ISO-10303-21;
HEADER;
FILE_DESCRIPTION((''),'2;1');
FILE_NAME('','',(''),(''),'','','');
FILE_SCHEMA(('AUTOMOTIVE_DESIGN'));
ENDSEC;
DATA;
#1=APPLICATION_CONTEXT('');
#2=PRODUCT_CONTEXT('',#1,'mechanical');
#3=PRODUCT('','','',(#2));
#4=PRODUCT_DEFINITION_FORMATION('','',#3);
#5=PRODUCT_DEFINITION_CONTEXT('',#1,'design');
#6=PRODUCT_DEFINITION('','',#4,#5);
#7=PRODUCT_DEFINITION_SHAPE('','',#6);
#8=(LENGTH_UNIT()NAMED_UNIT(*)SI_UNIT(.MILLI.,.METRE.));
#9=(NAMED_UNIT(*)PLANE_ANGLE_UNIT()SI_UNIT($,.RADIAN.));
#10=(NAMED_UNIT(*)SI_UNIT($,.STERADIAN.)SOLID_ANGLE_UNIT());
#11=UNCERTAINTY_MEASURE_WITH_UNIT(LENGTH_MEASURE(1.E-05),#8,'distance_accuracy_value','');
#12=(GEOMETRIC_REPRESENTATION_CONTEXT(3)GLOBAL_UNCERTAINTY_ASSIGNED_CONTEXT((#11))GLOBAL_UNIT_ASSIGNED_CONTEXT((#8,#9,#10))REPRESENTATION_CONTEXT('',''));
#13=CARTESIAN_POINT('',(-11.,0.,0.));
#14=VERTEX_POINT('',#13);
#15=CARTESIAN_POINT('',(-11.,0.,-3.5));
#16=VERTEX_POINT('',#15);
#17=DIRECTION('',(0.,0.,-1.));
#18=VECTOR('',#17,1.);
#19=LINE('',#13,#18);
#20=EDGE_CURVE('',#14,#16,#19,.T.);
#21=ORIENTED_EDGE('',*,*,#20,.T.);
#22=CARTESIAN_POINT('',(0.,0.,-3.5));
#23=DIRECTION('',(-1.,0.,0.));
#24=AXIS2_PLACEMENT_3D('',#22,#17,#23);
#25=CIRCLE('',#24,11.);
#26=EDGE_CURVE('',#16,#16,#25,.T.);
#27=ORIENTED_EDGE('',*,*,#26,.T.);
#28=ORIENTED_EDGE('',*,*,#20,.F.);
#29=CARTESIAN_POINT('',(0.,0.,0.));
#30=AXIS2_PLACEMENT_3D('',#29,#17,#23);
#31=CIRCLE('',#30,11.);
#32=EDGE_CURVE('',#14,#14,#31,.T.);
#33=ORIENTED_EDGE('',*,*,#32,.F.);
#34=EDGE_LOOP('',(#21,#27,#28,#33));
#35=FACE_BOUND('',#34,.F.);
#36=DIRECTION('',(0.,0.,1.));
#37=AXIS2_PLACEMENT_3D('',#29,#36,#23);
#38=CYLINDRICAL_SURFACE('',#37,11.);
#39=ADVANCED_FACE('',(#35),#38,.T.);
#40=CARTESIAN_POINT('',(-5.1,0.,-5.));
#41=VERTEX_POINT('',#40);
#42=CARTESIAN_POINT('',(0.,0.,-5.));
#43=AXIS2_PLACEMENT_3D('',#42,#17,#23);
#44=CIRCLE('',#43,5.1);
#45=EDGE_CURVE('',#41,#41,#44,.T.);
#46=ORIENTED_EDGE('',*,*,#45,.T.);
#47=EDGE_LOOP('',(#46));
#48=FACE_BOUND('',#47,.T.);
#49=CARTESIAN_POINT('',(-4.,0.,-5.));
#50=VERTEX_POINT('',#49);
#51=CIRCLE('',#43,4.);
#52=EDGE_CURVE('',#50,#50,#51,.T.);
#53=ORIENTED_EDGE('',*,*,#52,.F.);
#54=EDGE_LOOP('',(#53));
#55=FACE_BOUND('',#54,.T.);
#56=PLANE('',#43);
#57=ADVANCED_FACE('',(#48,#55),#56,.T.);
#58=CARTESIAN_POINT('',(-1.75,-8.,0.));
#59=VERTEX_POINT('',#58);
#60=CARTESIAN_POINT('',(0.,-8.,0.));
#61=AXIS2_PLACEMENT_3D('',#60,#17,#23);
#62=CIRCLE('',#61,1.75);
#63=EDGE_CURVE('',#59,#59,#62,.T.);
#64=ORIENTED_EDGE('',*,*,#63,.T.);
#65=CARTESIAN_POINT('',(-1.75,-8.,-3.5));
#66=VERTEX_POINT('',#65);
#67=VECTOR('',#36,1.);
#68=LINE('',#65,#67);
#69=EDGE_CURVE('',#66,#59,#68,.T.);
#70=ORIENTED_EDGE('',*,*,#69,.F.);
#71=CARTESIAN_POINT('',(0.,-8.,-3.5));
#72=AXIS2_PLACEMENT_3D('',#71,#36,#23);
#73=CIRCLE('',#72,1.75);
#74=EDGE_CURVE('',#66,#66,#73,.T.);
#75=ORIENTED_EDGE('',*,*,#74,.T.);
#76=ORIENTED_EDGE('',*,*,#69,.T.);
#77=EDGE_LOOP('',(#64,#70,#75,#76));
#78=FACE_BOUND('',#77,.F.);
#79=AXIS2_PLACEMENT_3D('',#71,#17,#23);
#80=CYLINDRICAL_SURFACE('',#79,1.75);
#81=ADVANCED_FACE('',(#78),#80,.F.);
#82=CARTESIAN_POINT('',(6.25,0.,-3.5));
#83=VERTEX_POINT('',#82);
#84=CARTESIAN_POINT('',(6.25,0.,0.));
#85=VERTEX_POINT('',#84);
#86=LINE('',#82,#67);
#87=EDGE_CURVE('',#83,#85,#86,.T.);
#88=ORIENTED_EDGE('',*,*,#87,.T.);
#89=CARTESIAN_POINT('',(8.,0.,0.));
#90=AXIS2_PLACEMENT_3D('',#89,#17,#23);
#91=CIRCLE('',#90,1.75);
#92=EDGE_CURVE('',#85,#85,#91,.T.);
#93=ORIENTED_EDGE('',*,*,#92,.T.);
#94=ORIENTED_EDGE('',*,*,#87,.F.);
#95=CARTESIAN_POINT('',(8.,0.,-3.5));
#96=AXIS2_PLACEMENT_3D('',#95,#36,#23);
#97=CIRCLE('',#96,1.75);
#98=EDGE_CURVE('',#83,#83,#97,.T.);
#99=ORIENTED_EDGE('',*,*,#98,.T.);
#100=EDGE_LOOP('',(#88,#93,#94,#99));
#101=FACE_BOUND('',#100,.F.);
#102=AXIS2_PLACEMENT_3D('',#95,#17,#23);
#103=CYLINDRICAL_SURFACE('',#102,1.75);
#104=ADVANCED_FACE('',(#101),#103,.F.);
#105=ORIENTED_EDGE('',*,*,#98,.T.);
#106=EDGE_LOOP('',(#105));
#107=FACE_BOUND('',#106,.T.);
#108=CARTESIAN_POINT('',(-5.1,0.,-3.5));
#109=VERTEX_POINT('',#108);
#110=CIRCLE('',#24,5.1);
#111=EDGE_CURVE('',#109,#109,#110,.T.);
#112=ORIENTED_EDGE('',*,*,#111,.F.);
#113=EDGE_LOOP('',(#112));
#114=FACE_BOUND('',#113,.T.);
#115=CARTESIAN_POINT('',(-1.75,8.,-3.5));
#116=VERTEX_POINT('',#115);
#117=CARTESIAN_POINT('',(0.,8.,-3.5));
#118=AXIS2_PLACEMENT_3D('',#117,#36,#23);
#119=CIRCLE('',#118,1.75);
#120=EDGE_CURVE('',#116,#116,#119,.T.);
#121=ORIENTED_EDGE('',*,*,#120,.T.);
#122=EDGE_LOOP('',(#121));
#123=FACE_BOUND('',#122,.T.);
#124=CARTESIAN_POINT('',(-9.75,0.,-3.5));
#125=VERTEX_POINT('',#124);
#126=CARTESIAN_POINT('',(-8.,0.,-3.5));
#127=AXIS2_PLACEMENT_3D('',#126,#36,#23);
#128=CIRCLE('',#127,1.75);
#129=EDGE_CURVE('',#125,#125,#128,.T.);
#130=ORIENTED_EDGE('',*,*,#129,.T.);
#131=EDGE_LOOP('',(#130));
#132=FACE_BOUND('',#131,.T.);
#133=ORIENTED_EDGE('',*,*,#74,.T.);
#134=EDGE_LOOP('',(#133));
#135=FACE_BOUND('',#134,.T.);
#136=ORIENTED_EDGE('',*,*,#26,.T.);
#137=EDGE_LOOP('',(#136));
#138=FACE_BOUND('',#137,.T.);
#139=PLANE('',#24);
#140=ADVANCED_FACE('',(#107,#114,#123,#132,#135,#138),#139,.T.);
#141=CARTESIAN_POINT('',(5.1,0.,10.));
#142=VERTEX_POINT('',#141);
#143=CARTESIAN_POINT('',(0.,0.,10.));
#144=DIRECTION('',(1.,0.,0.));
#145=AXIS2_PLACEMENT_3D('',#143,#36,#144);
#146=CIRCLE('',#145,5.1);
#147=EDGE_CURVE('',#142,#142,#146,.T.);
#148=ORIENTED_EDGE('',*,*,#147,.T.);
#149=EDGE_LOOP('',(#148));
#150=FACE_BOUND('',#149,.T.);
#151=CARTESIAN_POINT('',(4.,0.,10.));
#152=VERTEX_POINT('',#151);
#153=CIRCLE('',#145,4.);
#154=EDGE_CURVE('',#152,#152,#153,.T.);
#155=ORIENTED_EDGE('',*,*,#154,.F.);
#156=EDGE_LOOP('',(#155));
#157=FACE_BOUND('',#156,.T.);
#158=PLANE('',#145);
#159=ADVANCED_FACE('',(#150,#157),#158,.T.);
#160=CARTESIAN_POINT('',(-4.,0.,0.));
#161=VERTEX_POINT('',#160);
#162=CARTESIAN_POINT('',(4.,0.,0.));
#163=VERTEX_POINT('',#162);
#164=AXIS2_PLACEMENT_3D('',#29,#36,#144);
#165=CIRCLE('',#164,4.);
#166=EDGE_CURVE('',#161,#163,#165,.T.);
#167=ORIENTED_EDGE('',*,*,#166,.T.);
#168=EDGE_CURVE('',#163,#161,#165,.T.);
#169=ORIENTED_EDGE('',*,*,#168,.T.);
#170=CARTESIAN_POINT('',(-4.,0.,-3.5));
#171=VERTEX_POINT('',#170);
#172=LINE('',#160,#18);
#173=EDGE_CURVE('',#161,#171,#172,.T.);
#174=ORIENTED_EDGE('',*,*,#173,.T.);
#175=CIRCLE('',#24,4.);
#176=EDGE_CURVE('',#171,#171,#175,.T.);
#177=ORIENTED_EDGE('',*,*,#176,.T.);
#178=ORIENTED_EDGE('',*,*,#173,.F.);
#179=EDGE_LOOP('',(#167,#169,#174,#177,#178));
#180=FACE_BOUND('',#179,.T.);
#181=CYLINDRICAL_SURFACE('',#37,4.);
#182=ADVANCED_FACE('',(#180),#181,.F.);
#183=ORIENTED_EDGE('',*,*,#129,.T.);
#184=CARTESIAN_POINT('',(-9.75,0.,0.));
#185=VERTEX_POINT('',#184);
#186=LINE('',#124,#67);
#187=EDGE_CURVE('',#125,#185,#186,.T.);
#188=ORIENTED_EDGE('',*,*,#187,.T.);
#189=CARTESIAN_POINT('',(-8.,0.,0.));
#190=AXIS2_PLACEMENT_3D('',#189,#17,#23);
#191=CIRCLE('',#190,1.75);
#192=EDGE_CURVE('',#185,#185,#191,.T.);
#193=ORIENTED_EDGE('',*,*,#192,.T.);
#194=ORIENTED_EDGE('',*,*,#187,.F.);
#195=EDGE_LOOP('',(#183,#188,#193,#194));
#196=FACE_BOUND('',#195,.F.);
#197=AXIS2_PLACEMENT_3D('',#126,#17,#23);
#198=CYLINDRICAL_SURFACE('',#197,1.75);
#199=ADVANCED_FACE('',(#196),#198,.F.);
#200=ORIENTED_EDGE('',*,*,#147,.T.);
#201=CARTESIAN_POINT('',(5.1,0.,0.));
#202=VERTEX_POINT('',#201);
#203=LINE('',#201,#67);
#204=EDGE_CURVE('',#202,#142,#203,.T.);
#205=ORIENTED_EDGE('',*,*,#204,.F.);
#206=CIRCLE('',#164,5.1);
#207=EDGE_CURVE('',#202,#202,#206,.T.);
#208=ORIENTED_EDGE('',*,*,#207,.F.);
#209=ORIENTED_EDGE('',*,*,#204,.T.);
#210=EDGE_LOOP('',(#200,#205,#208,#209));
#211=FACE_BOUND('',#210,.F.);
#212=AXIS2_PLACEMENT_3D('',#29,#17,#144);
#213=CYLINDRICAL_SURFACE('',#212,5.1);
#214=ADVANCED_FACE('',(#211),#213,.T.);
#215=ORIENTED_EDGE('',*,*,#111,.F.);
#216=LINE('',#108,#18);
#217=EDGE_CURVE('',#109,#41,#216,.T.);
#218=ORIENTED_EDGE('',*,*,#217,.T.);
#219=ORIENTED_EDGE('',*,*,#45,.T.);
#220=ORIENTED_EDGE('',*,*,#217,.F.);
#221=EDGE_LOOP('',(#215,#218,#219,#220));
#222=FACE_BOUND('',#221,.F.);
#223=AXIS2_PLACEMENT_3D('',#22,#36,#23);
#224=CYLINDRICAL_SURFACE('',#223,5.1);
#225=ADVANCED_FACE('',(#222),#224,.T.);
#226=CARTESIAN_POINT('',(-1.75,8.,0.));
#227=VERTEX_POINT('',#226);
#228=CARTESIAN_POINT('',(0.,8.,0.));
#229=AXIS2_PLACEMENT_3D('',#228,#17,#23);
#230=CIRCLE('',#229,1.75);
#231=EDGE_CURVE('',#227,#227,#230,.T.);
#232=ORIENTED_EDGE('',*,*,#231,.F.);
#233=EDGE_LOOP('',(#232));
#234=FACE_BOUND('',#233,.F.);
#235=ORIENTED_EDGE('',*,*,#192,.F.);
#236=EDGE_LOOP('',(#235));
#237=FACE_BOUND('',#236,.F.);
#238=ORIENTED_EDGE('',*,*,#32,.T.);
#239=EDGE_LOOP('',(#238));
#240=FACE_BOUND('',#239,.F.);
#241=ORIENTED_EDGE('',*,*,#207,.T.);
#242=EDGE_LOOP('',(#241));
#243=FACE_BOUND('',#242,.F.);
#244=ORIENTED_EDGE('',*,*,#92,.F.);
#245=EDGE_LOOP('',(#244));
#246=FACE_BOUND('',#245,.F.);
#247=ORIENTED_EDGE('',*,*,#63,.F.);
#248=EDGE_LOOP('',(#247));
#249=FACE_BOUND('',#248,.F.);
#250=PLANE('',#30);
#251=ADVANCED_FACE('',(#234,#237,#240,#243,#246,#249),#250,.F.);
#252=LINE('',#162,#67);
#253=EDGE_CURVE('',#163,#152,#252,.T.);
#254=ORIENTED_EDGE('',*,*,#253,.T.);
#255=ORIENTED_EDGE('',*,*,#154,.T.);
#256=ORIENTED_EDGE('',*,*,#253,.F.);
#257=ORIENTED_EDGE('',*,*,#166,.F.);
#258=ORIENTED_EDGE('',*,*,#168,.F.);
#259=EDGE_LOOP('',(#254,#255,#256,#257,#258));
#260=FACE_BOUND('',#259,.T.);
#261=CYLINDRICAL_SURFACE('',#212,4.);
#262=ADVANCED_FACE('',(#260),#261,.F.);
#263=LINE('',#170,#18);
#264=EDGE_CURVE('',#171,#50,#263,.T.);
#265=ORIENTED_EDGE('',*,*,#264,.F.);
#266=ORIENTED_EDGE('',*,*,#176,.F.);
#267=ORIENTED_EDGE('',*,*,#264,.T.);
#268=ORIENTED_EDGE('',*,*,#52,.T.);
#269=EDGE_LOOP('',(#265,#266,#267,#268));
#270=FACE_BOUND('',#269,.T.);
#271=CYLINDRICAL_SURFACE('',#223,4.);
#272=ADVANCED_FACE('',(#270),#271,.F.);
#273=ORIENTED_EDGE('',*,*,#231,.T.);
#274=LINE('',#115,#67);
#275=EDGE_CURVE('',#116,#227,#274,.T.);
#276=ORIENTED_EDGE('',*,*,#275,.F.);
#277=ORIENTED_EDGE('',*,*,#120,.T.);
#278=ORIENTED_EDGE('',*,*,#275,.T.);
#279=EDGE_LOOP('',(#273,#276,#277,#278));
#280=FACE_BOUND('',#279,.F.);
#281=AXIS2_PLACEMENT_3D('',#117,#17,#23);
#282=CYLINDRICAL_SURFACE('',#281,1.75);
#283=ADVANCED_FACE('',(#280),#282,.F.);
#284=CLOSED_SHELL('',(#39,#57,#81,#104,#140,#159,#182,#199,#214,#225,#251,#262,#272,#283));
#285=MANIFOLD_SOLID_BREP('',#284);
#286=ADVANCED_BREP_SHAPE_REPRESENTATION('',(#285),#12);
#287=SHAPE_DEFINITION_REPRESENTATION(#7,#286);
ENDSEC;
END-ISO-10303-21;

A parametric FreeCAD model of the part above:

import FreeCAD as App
import Part
import Sketcher

V = App.Vector
Q = App.Units.Quantity

doc = App.newDocument("Part")
body = doc.addObject("PartDesign::Body", "Body")

sketch1 = body.newObject("Sketcher::SketchObject", "Sketch")
sketch1.AttachmentSupport = (doc.getObject("XY_Plane"), [""])
sketch1.MapMode = "FlatFace"
sketch1.addGeometry([
    Part.Circle(V(0, 0, 0), V(0, 0, 1), 5.1),
    Part.Circle(V(0, 0, 0), V(0, 0, 1), 4),
], False)
sketch1.addConstraint([
    Sketcher.Constraint("Coincident", 0, 3, -1, 1),
    Sketcher.Constraint("Coincident", 1, 3, -1, 1),
    Sketcher.Constraint("Diameter", 1, Q("8 mm")),
    Sketcher.Constraint("Diameter", 0, Q("10.2 mm")),
])
pad1 = body.newObject("PartDesign::Pad", "Pad")
pad1.Profile = sketch1
pad1.Length = 10

sketch2 = body.newObject("Sketcher::SketchObject", "Sketch001")
sketch2.AttachmentSupport = (doc.getObject("XY_Plane"), [""])
sketch2.MapMode = "FlatFace"
sketch2.addGeometry([
    Part.Circle(V(0, 0, 0), V(0, 0, 1), 11),
    Part.Circle(V(0, 0, 0), V(0, 0, 1), 4),
], False)
sketch2.addConstraint([
    Sketcher.Constraint("Coincident", 0, 3, -1, 1),
    Sketcher.Constraint("Coincident", 1, 3, -1, 1),
    Sketcher.Constraint("Diameter", 0, Q("22 mm")),
    Sketcher.Constraint("Diameter", 1, Q("8 mm")),
])
pad2 = body.newObject("PartDesign::Pad", "Pad001")
pad2.Profile = sketch2
pad2.Length = 3.5
pad2.Reversed = True

sketch3 = body.newObject("Sketcher::SketchObject", "Sketch002")
sketch3.AttachmentSupport = (doc.getObject("XY_Plane"), [""])
sketch3.MapMode = "FlatFace"
sketch3.AttachmentOffset = App.Placement(V(0, 0, -3.5), App.Rotation())
sketch3.addGeometry([
    Part.Circle(V(0, 0, 0), V(0, 0, 1), 5.1),
    Part.Circle(V(0, 0, 0), V(0, 0, 1), 4),
], False)
sketch3.addConstraint([
    Sketcher.Constraint("Coincident", 0, 3, -1, 1),
    Sketcher.Constraint("Coincident", 1, 3, -1, 1),
    Sketcher.Constraint("Diameter", 1, Q("8 mm")),
    Sketcher.Constraint("Diameter", 0, Q("10.2 mm")),
])
pad3 = body.newObject("PartDesign::Pad", "Pad002")
pad3.Profile = sketch3
pad3.Length = 1.5
pad3.Reversed = True

sketch4 = body.newObject("Sketcher::SketchObject", "Sketch003")
sketch4.AttachmentSupport = (doc.getObject("XY_Plane"), [""])
sketch4.MapMode = "FlatFace"
sketch4.AttachmentOffset = App.Placement(V(0, 0, -3.5), App.Rotation())
sketch4.addGeometry([
    Part.Circle(V(-8, 0, 0), V(0, 0, 1), 1.8),
    Part.Circle(V(0, 8, 0), V(0, 0, 1), 1.8),
    Part.Circle(V(0, -8, 0), V(0, 0, 1), 1.8),
    Part.Circle(V(8, 0, 0), V(0, 0, 1), 1.8),
], False)
sketch4.addConstraint([
    Sketcher.Constraint("Equal", 0, 1),
    Sketcher.Constraint("Equal", 1, 2),
    Sketcher.Constraint("Equal", 2, 3),
    Sketcher.Constraint("Symmetric", 1, 3, 2, 3, -1, 1),
    Sketcher.Constraint("Symmetric", 0, 3, 3, 3, -1, 1),
    Sketcher.Constraint("PointOnObject", 0, 3, -1),
    Sketcher.Constraint("PointOnObject", 1, 3, -2),
    Sketcher.Constraint("Diameter", 0, Q("3.5 mm")),
    Sketcher.Constraint("DistanceY", 2, 3, 1, 3, Q("16 mm")),
    Sketcher.Constraint("DistanceX", 0, 3, 3, 3, Q("16 mm")),
])
pocket1 = body.newObject("PartDesign::Pocket", "Pocket")
pocket1.Profile = sketch4
pocket1.Length = 3.5
pocket1.Reversed = True

doc.recompute()
